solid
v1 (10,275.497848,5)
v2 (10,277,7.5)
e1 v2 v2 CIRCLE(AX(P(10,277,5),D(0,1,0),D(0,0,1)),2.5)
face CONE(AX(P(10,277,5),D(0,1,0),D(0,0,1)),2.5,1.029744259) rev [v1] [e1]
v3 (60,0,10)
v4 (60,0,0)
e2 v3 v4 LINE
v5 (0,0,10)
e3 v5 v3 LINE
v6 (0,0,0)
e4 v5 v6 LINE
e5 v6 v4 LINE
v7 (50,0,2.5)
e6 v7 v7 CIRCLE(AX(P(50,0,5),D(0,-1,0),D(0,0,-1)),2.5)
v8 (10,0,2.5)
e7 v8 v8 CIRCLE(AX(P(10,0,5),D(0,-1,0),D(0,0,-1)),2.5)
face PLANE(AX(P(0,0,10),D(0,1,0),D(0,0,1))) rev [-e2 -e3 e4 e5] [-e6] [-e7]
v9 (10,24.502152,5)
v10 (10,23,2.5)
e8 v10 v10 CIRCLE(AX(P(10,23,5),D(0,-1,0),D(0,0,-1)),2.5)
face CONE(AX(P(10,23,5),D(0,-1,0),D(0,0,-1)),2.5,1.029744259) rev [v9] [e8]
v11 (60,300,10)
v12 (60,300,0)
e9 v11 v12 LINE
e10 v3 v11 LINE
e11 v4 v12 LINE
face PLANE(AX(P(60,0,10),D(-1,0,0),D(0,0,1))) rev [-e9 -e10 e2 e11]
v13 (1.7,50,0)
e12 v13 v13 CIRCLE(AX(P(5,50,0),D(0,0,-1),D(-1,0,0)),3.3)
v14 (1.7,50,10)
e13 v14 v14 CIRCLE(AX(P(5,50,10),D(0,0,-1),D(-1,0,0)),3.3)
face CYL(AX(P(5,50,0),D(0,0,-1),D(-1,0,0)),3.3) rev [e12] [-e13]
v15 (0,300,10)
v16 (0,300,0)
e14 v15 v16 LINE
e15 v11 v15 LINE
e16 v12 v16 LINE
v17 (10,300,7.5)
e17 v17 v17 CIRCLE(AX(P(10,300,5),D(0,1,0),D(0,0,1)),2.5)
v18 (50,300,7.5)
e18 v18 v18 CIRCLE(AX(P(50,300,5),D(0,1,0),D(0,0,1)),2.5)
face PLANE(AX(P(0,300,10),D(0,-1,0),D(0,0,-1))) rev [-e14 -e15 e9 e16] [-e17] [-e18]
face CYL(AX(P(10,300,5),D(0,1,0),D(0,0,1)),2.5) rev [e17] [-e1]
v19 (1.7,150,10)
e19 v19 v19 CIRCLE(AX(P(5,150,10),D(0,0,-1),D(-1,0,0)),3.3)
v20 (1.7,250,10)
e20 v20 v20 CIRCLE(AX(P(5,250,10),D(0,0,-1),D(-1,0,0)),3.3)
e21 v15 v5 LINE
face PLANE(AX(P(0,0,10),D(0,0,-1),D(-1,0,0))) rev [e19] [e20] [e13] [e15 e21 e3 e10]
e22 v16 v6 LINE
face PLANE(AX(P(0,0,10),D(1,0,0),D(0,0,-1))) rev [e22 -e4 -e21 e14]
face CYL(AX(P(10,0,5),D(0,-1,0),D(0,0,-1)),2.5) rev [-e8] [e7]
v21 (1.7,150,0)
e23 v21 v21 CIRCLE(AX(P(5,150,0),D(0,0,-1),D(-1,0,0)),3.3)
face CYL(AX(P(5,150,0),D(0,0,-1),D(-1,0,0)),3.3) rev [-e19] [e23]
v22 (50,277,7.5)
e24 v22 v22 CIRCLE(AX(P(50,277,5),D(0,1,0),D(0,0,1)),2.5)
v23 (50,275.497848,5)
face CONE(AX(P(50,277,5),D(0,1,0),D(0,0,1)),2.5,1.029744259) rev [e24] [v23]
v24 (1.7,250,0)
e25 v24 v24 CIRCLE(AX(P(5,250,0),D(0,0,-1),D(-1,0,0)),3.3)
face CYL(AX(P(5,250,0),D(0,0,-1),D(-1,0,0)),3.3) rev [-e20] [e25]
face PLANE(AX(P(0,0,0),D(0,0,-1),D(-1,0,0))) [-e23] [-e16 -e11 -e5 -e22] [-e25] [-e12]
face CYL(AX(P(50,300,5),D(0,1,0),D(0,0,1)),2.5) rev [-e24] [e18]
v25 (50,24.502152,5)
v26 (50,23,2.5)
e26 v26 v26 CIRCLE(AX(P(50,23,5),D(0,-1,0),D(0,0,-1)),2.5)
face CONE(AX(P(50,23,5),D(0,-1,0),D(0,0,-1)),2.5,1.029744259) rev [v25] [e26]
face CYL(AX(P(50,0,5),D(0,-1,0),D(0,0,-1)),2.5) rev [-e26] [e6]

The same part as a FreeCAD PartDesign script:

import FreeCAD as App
import Part
import Sketcher
Q = App.Units.Quantity

doc = App.newDocument("Part")
body = doc.addObject("PartDesign::Body", "Body")

# Sketch on XY plane
sketch1 = body.newObject("Sketcher::SketchObject", "Sketch")
sketch1.AttachmentSupport = (doc.getObject("XY_Plane"), [""])
sketch1.MapMode = "FlatFace"
sketch1.addGeometry([
    Part.LineSegment(App.Vector(0, 300, 0), App.Vector(0, 0, 0)),
    Part.LineSegment(App.Vector(0, 0, 0), App.Vector(60, 0, 0)),
    Part.LineSegment(App.Vector(60, 0, 0), App.Vector(60, 300, 0)),
    Part.LineSegment(App.Vector(60, 300, 0), App.Vector(0, 300, 0)),
], False)
sketch1.addConstraint([
    Sketcher.Constraint("Coincident", 0, 2, 1, 1),
    Sketcher.Constraint("Coincident", 1, 2, 2, 1),
    Sketcher.Constraint("Coincident", 2, 2, 3, 1),
    Sketcher.Constraint("Coincident", 3, 2, 0, 1),
    Sketcher.Constraint("Vertical", 0),
    Sketcher.Constraint("Horizontal", 1),
    Sketcher.Constraint("Vertical", 2),
    Sketcher.Constraint("Horizontal", 3),
    Sketcher.Constraint("Coincident", 0, 2, -1, 1),
    Sketcher.Constraint("DistanceX", 1, 1, 1, 2, Q("60 mm")),
    Sketcher.Constraint("DistanceY", 0, 2, 0, 1, Q("300 mm")),
])
pad1 = body.newObject("PartDesign::Pad", "Pad")
pad1.Profile = sketch1
pad1.Length = 10

# Sketch on XZ plane
sketch2 = body.newObject("Sketcher::SketchObject", "Sketch001")
sketch2.AttachmentSupport = (doc.getObject("XZ_Plane"), [""])
sketch2.MapMode = "FlatFace"
sketch2.addGeometry([
    Part.Circle(App.Vector(50, 5, 0), App.Vector(0, 0, 1), 2.5),
    Part.Circle(App.Vector(10, 5, 0), App.Vector(0, 0, 1), 2.5),
], False)
sketch2.addConstraint([
    Sketcher.Constraint("Equal", 0, 1),
    Sketcher.Constraint("Horizontal", 0, 3, 1, 3),
    Sketcher.Constraint("Diameter", 0, Q("5 mm")),
    Sketcher.Constraint("DistanceX", -1, 1, 0, 3, Q("50 mm")),
    Sketcher.Constraint("DistanceY", -1, 1, 0, 3, Q("5 mm")),
    Sketcher.Constraint("DistanceX", -1, 1, 1, 3, Q("10 mm")),
])
doc.recompute()
hole = body.newObject("PartDesign::Hole", "Hole")
hole.Profile = sketch2
hole.ThreadType = "None"
hole.Diameter = 5
hole.DepthType = "Dimension"
hole.Depth = 23
hole.DrillPoint = "Angled"
hole.DrillPointAngle = 118

# Sketch on XZ plane
sketch3 = body.newObject("Sketcher::SketchObject", "Sketch002")
sketch3.AttachmentSupport = (doc.getObject("XZ_Plane"), [""])
sketch3.MapMode = "FlatFace"
sketch3.AttachmentOffset = App.Placement(App.Vector(0, 0, -300), App.Rotation())
sketch3.addGeometry([
    Part.Circle(App.Vector(10, 5, 0), App.Vector(0, 0, 1), 2.5),
    Part.Circle(App.Vector(50, 5, 0), App.Vector(0, 0, 1), 2.5),
], False)
sketch3.addConstraint([
    Sketcher.Constraint("Equal", 0, 1),
    Sketcher.Constraint("Horizontal", 0, 3, 1, 3),
    Sketcher.Constraint("Diameter", 0, Q("5 mm")),
    Sketcher.Constraint("DistanceX", -1, 1, 0, 3, Q("10 mm")),
    Sketcher.Constraint("DistanceY", -1, 1, 0, 3, Q("5 mm")),
    Sketcher.Constraint("DistanceX", -1, 1, 1, 3, Q("50 mm")),
])
doc.recompute()
hole2 = body.newObject("PartDesign::Hole", "Hole001")
hole2.Profile = sketch3
hole2.ThreadType = "None"
hole2.Diameter = 5
hole2.DepthType = "Dimension"
hole2.Depth = 23
hole2.DrillPoint = "Angled"
hole2.DrillPointAngle = 118
hole2.Reversed = True

# Sketch on XY plane
sketch4 = body.newObject("Sketcher::SketchObject", "Sketch003")
sketch4.AttachmentSupport = (doc.getObject("XY_Plane"), [""])
sketch4.MapMode = "FlatFace"
sketch4.addGeometry([
    Part.Circle(App.Vector(5, 50, 0), App.Vector(0, 0, 1), 3.3),
    Part.Circle(App.Vector(5, 150, 0), App.Vector(0, 0, 1), 3.3),
    Part.Circle(App.Vector(5, 250, 0), App.Vector(0, 0, 1), 3.3),
], False)
sketch4.addConstraint([
    Sketcher.Constraint("Equal", 0, 1),
    Sketcher.Constraint("Equal", 1, 2),
    Sketcher.Constraint("Vertical", 0, 3, 1, 3),
    Sketcher.Constraint("Vertical", 1, 3, 2, 3),
    Sketcher.Constraint("Diameter", 0, Q("6.6 mm")),
    Sketcher.Constraint("DistanceX", -1, 1, 0, 3, Q("5 mm")),
    Sketcher.Constraint("DistanceY", -1, 1, 0, 3, Q("50 mm")),
    Sketcher.Constraint("DistanceY", -1, 1, 1, 3, Q("150 mm")),
    Sketcher.Constraint("DistanceY", -1, 1, 2, 3, Q("250 mm")),
])
doc.recompute()
hole3 = body.newObject("PartDesign::Hole", "Hole002")
hole3.Profile = sketch4
hole3.ThreadType = "None"
hole3.Diameter = 6.6
hole3.DepthType = "ThroughAll"
hole3.Reversed = True

doc.recompute()
